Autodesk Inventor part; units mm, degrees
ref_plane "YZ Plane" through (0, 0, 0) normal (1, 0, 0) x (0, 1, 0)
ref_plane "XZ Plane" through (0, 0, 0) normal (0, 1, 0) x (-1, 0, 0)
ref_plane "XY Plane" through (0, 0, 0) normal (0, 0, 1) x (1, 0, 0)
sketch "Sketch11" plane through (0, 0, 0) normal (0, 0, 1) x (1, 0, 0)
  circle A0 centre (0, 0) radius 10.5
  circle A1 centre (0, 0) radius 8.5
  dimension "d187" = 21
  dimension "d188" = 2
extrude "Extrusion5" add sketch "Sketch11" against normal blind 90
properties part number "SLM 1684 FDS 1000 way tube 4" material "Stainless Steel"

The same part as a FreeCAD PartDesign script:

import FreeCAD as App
import Part
import Sketcher
from FreeCAD import Vector

doc = App.newDocument("Part")
params = doc.addObject("Spreadsheet::Sheet", "Params")
for row, (alias, value) in enumerate([
    ("sketch1_diameter", "21 mm"),
    ("sketch1_diameter2", "17 mm"),
    ("pad1_length", "90 mm"),
], start=1):
    params.set(f"A{row}", alias)
    params.set(f"B{row}", "=" + value)
    params.setAlias(f"B{row}", alias)

body = doc.addObject("PartDesign::Body", "Body")

# Sketch on XY plane
sketch1 = body.newObject("Sketcher::SketchObject", "Sketch")
sketch1.AttachmentSupport = (doc.getObject("XY_Plane"), [""])
sketch1.MapMode = "FlatFace"
sketch1.addGeometry([
    Part.Circle(Vector(0, 0, 0), Vector(0, 0, 1), 10),
    Part.Circle(Vector(0, 0, 0), Vector(0, 0, 1), 8),
], False)
sketch1.addConstraint([
    Sketcher.Constraint("Coincident", 0, 3, -1, 1),
    Sketcher.Constraint("Coincident", 1, 3, -1, 1),
    Sketcher.Constraint("Diameter", 0, 21.0),
    Sketcher.Constraint("Diameter", 1, 17.0),
])
sketch1.setExpression("Constraints[2]", "Params.sketch1_diameter")
sketch1.setExpression("Constraints[3]", "Params.sketch1_diameter2")
pad1 = body.newObject("PartDesign::Pad", "Pad")
pad1.Profile = sketch1
pad1.setExpression("Length", "Params.pad1_length")
pad1.Reversed = True

doc.recompute()
